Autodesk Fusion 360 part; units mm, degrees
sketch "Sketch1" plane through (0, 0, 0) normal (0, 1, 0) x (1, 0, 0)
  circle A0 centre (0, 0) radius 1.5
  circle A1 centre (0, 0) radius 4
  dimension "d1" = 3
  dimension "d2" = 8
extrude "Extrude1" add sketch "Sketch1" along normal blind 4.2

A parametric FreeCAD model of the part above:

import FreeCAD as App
import Part
import Sketcher
from FreeCAD import Vector

doc = App.newDocument("Part")
body = doc.addObject("PartDesign::Body", "Body")

# Sketch on XZ plane
sketch1 = body.newObject("Sketcher::SketchObject", "Sketch")
sketch1.AttachmentSupport = (doc.getObject("XZ_Plane"), [""])
sketch1.MapMode = "FlatFace"
sketch1.addGeometry([
    Part.Circle(Vector(0, 0, 0), Vector(0, 0, 1), 4),
    Part.Circle(Vector(0, 0, 0), Vector(0, 0, 1), 1.5),
], False)
sketch1.addConstraint([
    Sketcher.Constraint("Coincident", 0, 3, -1, 1),
    Sketcher.Constraint("Coincident", 1, 3, -1, 1),
    Sketcher.Constraint("Diameter", 0, 8.0),
    Sketcher.Constraint("Diameter", 1, 3.0),
])
pad1 = body.newObject("PartDesign::Pad", "Pad")
pad1.Profile = sketch1
pad1.Length = 4.2
pad1.Reversed = True

doc.recompute()
